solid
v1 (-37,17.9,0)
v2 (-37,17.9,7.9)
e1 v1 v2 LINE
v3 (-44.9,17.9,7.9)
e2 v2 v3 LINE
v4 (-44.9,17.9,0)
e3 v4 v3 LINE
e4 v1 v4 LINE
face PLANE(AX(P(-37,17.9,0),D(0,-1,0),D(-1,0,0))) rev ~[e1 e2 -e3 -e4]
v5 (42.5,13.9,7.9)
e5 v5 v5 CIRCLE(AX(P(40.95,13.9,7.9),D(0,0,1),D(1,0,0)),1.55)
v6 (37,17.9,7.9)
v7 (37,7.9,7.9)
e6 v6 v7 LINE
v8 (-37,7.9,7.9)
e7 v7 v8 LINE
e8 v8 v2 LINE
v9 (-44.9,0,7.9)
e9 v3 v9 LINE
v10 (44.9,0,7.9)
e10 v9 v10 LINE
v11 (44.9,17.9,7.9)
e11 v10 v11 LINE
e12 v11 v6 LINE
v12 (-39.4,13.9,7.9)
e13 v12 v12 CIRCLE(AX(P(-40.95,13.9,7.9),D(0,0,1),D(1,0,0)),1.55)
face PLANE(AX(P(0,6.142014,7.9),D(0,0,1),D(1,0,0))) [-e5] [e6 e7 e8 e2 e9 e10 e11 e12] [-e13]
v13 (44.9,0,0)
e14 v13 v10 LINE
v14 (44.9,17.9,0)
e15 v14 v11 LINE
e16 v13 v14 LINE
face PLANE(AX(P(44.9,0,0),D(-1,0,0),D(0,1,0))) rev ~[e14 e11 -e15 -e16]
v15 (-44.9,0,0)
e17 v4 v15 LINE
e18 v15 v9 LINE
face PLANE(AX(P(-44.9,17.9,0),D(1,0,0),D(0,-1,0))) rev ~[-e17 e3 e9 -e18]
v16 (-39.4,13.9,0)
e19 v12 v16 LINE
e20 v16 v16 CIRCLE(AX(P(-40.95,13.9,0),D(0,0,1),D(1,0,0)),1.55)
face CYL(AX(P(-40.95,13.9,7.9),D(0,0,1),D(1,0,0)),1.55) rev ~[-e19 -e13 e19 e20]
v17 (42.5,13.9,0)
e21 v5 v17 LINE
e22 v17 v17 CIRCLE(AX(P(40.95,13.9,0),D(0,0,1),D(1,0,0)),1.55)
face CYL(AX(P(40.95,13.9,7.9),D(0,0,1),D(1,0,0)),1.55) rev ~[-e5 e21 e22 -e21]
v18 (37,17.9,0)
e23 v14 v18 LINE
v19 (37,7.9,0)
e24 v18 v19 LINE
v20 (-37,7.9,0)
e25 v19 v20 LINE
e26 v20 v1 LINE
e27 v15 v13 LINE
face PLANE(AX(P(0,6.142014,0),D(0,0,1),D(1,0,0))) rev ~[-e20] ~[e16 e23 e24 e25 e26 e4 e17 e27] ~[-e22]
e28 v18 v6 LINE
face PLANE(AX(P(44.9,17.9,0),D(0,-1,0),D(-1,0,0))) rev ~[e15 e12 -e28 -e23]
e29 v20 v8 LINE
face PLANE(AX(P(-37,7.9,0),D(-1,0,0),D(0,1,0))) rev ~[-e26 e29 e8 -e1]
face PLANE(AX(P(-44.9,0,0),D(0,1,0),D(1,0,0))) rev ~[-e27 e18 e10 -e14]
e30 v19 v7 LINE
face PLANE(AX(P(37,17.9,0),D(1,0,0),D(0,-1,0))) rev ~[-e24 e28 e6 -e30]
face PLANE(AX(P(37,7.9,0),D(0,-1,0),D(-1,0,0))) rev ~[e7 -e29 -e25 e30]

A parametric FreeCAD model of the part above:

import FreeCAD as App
import Part
import Sketcher
from FreeCAD import Vector
Q = App.Units.Quantity

doc = App.newDocument("Part")
params = doc.addObject("Spreadsheet::Sheet", "Params")
for row, (alias, value) in enumerate([
    ("sketch1_width", "74 mm"),
    ("sketch1_height", "10 mm"),
    ("sketch1_width2", "89.8 mm"),
    ("sketch1_height2", "17.9 mm"),
    ("pad1_length", "7.9 mm"),
    ("sketch2_diameter", "3.1 mm"),
], start=1):
    params.set(f"A{row}", alias)
    params.set(f"B{row}", "=" + value)
    params.setAlias(f"B{row}", alias)

body = doc.addObject("PartDesign::Body", "Body")

sketch1 = body.newObject("Sketcher::SketchObject", "Sketch")
sketch1.AttachmentSupport = (doc.getObject("XY_Plane"), [""])
sketch1.MapMode = "FlatFace"
sketch1.addGeometry([
    Part.LineSegment(Vector(-45, 18, 0), Vector(-45, 0, 0)),
    Part.LineSegment(Vector(-45, 0, 0), Vector(45, 0, 0)),
    Part.LineSegment(Vector(45, 0, 0), Vector(45, 18, 0)),
    Part.LineSegment(Vector(45, 18, 0), Vector(37, 18, 0)),
    Part.LineSegment(Vector(37, 18, 0), Vector(37, 8, 0)),
    Part.LineSegment(Vector(37, 8, 0), Vector(-37, 8, 0)),
    Part.LineSegment(Vector(-37, 8, 0), Vector(-37, 18, 0)),
    Part.LineSegment(Vector(-37, 18, 0), Vector(-45, 18, 0)),
], False)
sketch1.addConstraint([
    Sketcher.Constraint("Coincident", 0, 2, 1, 1),
    Sketcher.Constraint("Coincident", 1, 2, 2, 1),
    Sketcher.Constraint("Coincident", 2, 2, 3, 1),
    Sketcher.Constraint("Coincident", 3, 2, 4, 1),
    Sketcher.Constraint("Coincident", 4, 2, 5, 1),
    Sketcher.Constraint("Coincident", 5, 2, 6, 1),
    Sketcher.Constraint("Coincident", 6, 2, 7, 1),
    Sketcher.Constraint("Coincident", 7, 2, 0, 1),
    Sketcher.Constraint("Vertical", 0),
    Sketcher.Constraint("Horizontal", 1),
    Sketcher.Constraint("Vertical", 2),
    Sketcher.Constraint("Horizontal", 3),
    Sketcher.Constraint("Vertical", 4),
    Sketcher.Constraint("Horizontal", 5),
    Sketcher.Constraint("Vertical", 6),
    Sketcher.Constraint("Horizontal", 7),
    Sketcher.Constraint("Symmetric", 0, 2, 1, 2, -1, 1),
    Sketcher.Constraint("Symmetric", 3, 2, 6, 2, -2),
    Sketcher.Constraint("DistanceX", 5, 2, 5, 1, Q("74 mm")),
    Sketcher.Constraint("DistanceY", 4, 2, 4, 1, Q("10 mm")),
    Sketcher.Constraint("DistanceX", 1, 1, 1, 2, Q("89.8 mm")),
    Sketcher.Constraint("DistanceY", 0, 2, 0, 1, Q("17.9 mm")),
])
sketch1.setExpression("Constraints[18]", "Params.sketch1_width")
sketch1.setExpression("Constraints[19]", "Params.sketch1_height")
sketch1.setExpression("Constraints[20]", "Params.sketch1_width2")
sketch1.setExpression("Constraints[21]", "Params.sketch1_height2")
pad1 = body.newObject("PartDesign::Pad", "Pad")
pad1.Profile = sketch1
pad1.setExpression("Length", "Params.pad1_length")

sketch2 = body.newObject("Sketcher::SketchObject", "Sketch001")
sketch2.AttachmentSupport = (doc.getObject("XY_Plane"), [""])
sketch2.MapMode = "FlatFace"
sketch2.AttachmentOffset = App.Placement(Vector(0, 0, 7.9), App.Rotation())
sketch2.addGeometry([
    Part.Circle(Vector(41, 13.9, 0), Vector(0, 0, 1), 1.6),
    Part.Circle(Vector(-41, 13.9, 0), Vector(0, 0, 1), 1.6),
], False)
sketch2.addConstraint([
    Sketcher.Constraint("Equal", 0, 1),
    Sketcher.Constraint("Symmetric", 0, 3, 1, 3, -2),
    Sketcher.Constraint("Diameter", 0, Q("3.1 mm")),
    Sketcher.Constraint("DistanceY", -1, 1, 0, 3, Q("13.9 mm")),
    Sketcher.Constraint("DistanceX", 1, 3, 0, 3, Q("81.9 mm")),
])
sketch2.setExpression("Constraints[2]", "Params.sketch2_diameter")
pocket1 = body.newObject("PartDesign::Pocket", "Pocket")
pocket1.Profile = sketch2
pocket1.Type = "ThroughAll"

doc.recompute()
